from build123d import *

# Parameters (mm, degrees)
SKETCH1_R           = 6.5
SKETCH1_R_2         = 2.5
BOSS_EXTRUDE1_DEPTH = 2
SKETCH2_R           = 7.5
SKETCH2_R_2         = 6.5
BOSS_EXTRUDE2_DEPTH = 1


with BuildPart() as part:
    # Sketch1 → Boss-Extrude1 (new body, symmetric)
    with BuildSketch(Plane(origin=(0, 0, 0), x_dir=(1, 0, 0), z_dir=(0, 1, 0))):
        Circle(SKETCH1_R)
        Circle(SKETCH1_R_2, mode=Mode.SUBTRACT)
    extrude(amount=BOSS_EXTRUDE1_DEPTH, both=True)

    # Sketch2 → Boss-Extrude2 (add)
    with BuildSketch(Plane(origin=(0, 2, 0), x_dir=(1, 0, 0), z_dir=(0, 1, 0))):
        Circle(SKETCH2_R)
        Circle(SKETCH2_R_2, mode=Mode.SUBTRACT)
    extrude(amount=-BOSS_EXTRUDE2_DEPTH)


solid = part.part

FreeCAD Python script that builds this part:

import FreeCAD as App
import Part
import Sketcher
from FreeCAD import Vector
Q = App.Units.Quantity

doc = App.newDocument("Part")
body = doc.addObject("PartDesign::Body", "Body")

# Sketch on XZ plane
sketch1 = body.newObject("Sketcher::SketchObject", "Sketch")
sketch1.AttachmentSupport = (doc.getObject("XZ_Plane"), [""])
sketch1.MapMode = "FlatFace"
sketch1.addGeometry([
    Part.Circle(Vector(0, 0, 0), Vector(0, 0, 1), 6.5),
    Part.Circle(Vector(0, 0, 0), Vector(0, 0, 1), 2.5),
], False)
sketch1.addConstraint([
    Sketcher.Constraint("Coincident", 0, 3, -1, 1),
    Sketcher.Constraint("Coincident", 1, 3, -1, 1),
    Sketcher.Constraint("Diameter", 0, Q("13 mm")),
    Sketcher.Constraint("Diameter", 1, Q("5 mm")),
])
pad1 = body.newObject("PartDesign::Pad", "Pad")
pad1.Profile = sketch1
pad1.Length = 4
pad1.Midplane = True

# Sketch on XZ plane
sketch2 = body.newObject("Sketcher::SketchObject", "Sketch001")
sketch2.AttachmentSupport = (doc.getObject("XZ_Plane"), [""])
sketch2.MapMode = "FlatFace"
sketch2.AttachmentOffset = App.Placement(Vector(0, 0, -2), App.Rotation())
sketch2.addGeometry([
    Part.Circle(Vector(0, 0, 0), Vector(0, 0, 1), 8),
    Part.Circle(Vector(0, 0, 0), Vector(0, 0, 1), 6),
], False)
sketch2.addConstraint([
    Sketcher.Constraint("Coincident", 0, 3, -1, 1),
    Sketcher.Constraint("Coincident", 1, 3, -1, 1),
    Sketcher.Constraint("Diameter", 0, Q("15 mm")),
    Sketcher.Constraint("Diameter", 1, Q("13 mm")),
])
pad2 = body.newObject("PartDesign::Pad", "Pad001")
pad2.Profile = sketch2
pad2.Length = 1

doc.recompute()
